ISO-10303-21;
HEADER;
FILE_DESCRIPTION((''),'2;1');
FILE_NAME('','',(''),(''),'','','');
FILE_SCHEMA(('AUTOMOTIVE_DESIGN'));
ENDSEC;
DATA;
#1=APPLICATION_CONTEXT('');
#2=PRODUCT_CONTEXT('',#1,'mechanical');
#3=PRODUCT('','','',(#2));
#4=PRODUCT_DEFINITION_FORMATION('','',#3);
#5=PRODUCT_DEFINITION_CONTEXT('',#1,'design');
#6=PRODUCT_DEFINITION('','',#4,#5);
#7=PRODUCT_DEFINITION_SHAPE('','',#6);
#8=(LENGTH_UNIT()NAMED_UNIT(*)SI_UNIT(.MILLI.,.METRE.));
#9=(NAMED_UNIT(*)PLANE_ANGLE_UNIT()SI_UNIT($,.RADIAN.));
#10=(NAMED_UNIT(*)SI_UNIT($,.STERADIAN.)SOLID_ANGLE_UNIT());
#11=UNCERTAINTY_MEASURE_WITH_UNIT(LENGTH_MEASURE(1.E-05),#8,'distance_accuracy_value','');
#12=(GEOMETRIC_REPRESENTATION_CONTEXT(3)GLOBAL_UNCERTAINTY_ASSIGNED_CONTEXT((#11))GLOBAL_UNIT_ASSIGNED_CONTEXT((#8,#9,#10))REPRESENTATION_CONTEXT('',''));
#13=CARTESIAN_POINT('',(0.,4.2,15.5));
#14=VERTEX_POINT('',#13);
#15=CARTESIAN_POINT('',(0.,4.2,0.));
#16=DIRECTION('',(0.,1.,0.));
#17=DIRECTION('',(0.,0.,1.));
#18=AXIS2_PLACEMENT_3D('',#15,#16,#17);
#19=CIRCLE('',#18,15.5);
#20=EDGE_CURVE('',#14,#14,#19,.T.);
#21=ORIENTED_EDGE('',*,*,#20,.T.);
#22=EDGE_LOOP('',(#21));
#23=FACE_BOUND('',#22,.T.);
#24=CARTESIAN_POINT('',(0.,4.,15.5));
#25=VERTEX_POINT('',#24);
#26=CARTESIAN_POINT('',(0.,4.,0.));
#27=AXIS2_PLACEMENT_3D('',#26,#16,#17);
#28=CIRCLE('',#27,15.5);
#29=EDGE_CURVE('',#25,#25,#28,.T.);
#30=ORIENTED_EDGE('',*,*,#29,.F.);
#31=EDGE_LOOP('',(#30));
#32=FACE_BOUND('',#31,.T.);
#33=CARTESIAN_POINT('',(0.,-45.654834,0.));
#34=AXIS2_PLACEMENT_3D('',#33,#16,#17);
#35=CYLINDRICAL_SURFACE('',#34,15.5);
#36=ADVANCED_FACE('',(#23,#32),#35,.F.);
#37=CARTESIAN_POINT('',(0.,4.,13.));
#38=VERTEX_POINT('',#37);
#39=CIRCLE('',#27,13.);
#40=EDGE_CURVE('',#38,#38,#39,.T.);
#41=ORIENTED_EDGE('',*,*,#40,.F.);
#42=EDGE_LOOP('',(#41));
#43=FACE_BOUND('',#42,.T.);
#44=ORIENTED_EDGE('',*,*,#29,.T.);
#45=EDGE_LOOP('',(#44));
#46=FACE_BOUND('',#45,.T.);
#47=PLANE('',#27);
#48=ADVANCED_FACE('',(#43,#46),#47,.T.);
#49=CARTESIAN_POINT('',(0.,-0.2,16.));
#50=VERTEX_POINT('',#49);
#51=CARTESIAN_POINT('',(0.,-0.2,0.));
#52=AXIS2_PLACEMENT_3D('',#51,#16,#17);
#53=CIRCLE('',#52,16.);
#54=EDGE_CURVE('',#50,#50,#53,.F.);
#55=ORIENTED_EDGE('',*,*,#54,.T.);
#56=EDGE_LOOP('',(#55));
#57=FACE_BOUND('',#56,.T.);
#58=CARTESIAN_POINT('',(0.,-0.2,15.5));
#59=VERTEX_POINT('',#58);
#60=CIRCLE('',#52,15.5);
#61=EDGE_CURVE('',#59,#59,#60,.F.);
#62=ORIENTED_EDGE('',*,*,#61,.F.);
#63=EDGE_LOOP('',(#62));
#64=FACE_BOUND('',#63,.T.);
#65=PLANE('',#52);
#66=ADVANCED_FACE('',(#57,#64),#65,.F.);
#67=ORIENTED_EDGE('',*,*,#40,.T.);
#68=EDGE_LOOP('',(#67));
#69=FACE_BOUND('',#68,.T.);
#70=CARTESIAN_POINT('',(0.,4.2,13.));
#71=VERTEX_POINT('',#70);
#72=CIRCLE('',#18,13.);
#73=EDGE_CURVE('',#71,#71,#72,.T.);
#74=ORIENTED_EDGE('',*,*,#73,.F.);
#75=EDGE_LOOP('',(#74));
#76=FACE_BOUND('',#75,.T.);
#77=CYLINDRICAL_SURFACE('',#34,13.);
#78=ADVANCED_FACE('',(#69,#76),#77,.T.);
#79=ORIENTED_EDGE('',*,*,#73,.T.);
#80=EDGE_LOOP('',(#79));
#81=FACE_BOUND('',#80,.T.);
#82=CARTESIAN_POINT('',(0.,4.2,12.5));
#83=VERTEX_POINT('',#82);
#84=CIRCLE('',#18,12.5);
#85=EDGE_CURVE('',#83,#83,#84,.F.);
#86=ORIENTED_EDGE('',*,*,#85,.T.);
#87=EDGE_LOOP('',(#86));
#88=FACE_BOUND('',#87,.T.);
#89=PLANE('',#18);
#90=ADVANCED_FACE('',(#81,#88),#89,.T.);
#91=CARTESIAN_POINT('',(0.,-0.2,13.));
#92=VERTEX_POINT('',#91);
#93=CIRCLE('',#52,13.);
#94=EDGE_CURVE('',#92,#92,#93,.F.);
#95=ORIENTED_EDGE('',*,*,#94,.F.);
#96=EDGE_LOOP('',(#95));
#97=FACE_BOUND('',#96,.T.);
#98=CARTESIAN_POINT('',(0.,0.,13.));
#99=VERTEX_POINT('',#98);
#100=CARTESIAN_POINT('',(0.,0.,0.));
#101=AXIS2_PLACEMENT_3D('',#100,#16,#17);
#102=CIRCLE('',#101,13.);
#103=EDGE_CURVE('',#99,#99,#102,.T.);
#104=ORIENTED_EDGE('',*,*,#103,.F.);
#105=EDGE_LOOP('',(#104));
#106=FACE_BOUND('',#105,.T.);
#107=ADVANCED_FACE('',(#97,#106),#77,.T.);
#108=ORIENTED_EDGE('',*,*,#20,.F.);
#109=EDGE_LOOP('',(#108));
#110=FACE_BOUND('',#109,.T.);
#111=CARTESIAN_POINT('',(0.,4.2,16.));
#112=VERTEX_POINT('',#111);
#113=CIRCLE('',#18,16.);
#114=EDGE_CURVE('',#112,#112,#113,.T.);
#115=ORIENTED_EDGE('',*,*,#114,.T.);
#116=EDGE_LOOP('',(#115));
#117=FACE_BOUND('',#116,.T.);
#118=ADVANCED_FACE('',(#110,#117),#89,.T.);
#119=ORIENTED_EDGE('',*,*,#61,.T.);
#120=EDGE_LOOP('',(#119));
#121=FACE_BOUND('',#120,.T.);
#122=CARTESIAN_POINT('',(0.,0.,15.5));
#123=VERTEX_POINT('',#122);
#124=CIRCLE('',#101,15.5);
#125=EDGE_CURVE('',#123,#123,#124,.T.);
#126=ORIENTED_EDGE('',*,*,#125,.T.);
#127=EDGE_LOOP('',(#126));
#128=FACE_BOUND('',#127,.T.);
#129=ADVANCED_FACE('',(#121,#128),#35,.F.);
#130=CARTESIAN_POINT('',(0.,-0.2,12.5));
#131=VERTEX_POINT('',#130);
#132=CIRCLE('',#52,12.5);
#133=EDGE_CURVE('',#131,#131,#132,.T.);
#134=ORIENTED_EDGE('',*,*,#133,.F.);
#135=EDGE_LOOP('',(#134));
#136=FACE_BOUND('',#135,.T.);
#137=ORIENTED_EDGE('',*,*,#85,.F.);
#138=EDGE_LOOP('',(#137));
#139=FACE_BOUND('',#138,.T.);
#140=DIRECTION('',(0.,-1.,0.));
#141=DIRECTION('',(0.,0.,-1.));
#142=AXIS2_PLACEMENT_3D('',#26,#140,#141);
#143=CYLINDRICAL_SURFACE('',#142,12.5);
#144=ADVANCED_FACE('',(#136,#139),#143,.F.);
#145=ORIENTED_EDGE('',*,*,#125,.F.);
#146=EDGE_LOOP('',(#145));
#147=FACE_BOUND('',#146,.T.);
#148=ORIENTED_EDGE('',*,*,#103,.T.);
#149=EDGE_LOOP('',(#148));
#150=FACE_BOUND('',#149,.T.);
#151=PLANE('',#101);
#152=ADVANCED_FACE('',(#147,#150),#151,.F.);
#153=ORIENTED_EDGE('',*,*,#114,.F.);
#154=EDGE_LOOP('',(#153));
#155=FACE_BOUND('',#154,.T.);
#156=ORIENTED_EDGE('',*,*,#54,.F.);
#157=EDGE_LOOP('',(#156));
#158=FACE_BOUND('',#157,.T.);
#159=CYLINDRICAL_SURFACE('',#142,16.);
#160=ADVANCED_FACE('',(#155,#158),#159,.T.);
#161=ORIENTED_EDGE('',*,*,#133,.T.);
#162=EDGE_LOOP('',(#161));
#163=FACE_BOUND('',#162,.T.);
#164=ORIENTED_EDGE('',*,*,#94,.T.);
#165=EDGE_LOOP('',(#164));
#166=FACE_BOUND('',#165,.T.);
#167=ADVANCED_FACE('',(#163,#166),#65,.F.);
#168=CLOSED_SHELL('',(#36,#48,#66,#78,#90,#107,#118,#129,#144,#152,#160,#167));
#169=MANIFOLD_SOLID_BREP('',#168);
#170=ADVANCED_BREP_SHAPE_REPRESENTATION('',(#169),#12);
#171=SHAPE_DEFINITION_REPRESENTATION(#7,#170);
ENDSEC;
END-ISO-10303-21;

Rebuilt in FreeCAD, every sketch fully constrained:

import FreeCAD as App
import Part
import Sketcher
from FreeCAD import Vector
Q = App.Units.Quantity

doc = App.newDocument("Part")
params = doc.addObject("Spreadsheet::Sheet", "Params")
for row, (alias, value) in enumerate([
    ("sketch1_diameter", "32 mm"),
    ("sketch1_diameter2", "25 mm"),
    ("pad1_length", "4 mm"),
    ("sketch2_diameter", "32 mm"),
    ("sketch2_diameter2", "31 mm"),
    ("sketch2_diameter3", "26 mm"),
    ("sketch2_diameter4", "25 mm"),
    ("pad2_length", "0.2 mm"),
    ("pad2_length2", "4.2 mm"),
], start=1):
    params.set(f"A{row}", alias)
    params.set(f"B{row}", "=" + value)
    params.setAlias(f"B{row}", alias)

body = doc.addObject("PartDesign::Body", "Body")

# Sketch on XZ plane
sketch1 = body.newObject("Sketcher::SketchObject", "Sketch")
sketch1.AttachmentSupport = (doc.getObject("XZ_Plane"), [""])
sketch1.MapMode = "FlatFace"
sketch1.addGeometry([
    Part.Circle(Vector(0, 0, 0), Vector(0, 0, 1), 16),
    Part.Circle(Vector(0, 0, 0), Vector(0, 0, 1), 12),
], False)
sketch1.addConstraint([
    Sketcher.Constraint("Coincident", 0, 3, -1, 1),
    Sketcher.Constraint("Coincident", 1, 3, -1, 1),
    Sketcher.Constraint("Diameter", 0, Q("32 mm")),
    Sketcher.Constraint("Diameter", 1, Q("25 mm")),
])
sketch1.setExpression("Constraints[2]", "Params.sketch1_diameter")
sketch1.setExpression("Constraints[3]", "Params.sketch1_diameter2")
pad1 = body.newObject("PartDesign::Pad", "Pad")
pad1.Profile = sketch1
pad1.setExpression("Length", "Params.pad1_length")
pad1.Reversed = True

# Sketch on XZ plane
sketch2 = body.newObject("Sketcher::SketchObject", "Sketch001")
sketch2.AttachmentSupport = (doc.getObject("XZ_Plane"), [""])
sketch2.MapMode = "FlatFace"
sketch2.AttachmentOffset = App.Placement(Vector(0, 0, -4), App.Rotation())
sketch2.addGeometry([
    Part.Circle(Vector(0, 0, 0), Vector(0, 0, 1), 16),
    Part.Circle(Vector(0, 0, 0), Vector(0, 0, 1), 16),
    Part.Circle(Vector(0, 0, 0), Vector(0, 0, 1), 13),
    Part.Circle(Vector(0, 0, 0), Vector(0, 0, 1), 12),
], False)
sketch2.addConstraint([
    Sketcher.Constraint("Coincident", 0, 3, -1, 1),
    Sketcher.Constraint("Coincident", 1, 3, -1, 1),
    Sketcher.Constraint("Coincident", 2, 3, -1, 1),
    Sketcher.Constraint("Coincident", 3, 3, -1, 1),
    Sketcher.Constraint("Diameter", 0, Q("32 mm")),
    Sketcher.Constraint("Diameter", 1, Q("31 mm")),
    Sketcher.Constraint("Diameter", 2, Q("26 mm")),
    Sketcher.Constraint("Diameter", 3, Q("25 mm")),
])
sketch2.setExpression("Constraints[4]", "Params.sketch2_diameter")
sketch2.setExpression("Constraints[5]", "Params.sketch2_diameter2")
sketch2.setExpression("Constraints[6]", "Params.sketch2_diameter3")
sketch2.setExpression("Constraints[7]", "Params.sketch2_diameter4")
pad2 = body.newObject("PartDesign::Pad", "Pad001")
pad2.Profile = sketch2
pad2.Type = "TwoLengths"
pad2.setExpression("Length", "Params.pad2_length")
pad2.setExpression("Length2", "Params.pad2_length2")
pad2.Reversed = True

doc.recompute()
